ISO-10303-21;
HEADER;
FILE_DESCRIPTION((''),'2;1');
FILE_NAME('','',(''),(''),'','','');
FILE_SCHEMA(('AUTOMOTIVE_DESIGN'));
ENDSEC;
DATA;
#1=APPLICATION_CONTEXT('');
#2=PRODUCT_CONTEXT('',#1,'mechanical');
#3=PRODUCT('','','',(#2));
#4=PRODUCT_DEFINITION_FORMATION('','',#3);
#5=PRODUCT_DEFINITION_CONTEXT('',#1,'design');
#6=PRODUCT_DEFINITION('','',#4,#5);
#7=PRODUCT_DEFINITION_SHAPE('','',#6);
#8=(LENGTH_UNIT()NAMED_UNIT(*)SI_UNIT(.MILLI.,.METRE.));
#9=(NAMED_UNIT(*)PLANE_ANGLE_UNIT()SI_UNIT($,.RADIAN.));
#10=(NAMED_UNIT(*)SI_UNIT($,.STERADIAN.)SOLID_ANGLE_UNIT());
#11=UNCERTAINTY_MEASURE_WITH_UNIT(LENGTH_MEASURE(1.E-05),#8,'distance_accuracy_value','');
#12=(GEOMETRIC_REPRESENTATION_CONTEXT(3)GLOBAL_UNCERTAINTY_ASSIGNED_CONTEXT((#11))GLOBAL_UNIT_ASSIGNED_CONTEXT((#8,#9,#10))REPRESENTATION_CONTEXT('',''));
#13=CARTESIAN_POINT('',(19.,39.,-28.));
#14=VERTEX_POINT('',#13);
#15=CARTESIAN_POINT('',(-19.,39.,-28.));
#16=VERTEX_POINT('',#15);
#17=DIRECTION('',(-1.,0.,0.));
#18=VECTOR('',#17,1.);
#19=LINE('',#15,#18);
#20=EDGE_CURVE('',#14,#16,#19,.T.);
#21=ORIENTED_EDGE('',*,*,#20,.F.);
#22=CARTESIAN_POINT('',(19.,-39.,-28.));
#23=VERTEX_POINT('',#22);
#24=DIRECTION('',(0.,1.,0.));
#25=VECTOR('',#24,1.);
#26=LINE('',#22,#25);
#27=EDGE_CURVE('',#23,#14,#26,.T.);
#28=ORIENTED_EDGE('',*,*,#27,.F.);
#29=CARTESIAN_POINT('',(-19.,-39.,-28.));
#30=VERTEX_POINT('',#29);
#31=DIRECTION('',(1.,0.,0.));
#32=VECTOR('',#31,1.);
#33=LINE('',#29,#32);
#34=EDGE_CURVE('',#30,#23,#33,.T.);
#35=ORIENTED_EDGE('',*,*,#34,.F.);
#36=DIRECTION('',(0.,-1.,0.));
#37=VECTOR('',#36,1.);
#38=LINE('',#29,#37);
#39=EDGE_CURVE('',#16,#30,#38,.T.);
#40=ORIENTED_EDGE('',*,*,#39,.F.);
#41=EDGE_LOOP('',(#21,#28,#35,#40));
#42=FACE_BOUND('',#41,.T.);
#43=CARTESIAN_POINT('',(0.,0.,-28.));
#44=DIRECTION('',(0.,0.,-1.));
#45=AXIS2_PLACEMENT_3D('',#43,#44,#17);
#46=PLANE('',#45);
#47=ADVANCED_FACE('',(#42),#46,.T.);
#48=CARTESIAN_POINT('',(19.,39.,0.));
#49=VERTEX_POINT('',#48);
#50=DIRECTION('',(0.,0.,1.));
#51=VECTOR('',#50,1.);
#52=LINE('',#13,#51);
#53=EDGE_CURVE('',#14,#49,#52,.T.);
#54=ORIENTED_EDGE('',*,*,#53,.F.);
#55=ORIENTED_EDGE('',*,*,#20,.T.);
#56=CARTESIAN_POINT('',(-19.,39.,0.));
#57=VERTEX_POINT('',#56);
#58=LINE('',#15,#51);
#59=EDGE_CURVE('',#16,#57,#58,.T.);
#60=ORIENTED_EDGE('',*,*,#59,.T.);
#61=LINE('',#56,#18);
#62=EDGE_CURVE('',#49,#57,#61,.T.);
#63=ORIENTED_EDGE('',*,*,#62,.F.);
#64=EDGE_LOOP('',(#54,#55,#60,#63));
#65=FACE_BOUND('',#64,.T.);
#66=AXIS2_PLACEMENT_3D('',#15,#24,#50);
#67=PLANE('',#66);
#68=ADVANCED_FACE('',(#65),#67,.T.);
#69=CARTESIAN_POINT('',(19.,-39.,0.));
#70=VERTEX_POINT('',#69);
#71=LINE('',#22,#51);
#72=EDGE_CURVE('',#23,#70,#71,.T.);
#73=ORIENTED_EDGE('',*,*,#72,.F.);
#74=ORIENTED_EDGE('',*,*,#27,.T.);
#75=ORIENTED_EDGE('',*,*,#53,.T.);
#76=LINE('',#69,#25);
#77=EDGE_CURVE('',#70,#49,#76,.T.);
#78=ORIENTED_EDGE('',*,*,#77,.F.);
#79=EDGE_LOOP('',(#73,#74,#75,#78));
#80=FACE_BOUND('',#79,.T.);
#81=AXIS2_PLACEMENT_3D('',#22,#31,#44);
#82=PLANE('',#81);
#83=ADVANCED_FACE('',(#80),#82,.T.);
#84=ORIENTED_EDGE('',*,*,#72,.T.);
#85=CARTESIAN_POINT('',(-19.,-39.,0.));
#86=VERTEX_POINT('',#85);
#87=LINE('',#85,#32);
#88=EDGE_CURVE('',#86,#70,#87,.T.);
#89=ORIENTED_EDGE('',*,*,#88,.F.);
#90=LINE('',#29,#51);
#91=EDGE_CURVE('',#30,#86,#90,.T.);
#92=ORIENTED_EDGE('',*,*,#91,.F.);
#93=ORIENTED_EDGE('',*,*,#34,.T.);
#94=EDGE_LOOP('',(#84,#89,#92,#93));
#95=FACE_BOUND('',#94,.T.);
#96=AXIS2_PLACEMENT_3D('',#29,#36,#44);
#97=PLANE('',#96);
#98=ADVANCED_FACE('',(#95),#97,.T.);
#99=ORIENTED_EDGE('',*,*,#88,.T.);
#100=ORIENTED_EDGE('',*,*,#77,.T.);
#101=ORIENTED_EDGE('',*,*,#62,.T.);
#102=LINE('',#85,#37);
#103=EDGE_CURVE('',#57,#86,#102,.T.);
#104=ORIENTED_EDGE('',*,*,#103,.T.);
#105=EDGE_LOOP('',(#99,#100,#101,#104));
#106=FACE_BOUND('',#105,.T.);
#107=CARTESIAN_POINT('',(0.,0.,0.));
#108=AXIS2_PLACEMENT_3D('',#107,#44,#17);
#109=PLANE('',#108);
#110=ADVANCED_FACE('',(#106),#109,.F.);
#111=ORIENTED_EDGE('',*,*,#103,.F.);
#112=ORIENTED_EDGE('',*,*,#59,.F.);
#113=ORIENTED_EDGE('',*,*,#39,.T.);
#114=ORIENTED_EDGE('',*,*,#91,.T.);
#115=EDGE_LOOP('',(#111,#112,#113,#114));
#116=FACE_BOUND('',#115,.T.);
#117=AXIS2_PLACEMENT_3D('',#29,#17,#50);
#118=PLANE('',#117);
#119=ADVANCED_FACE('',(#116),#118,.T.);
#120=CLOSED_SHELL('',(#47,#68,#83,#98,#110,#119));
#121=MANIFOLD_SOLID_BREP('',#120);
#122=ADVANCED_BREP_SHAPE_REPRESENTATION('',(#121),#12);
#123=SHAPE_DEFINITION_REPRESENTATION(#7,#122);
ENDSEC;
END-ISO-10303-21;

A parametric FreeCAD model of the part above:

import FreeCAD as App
import Part
import Sketcher

V = App.Vector
Q = App.Units.Quantity


def add_polygon(sketch, points):
    """Adds a closed chain of lines whose ends are joined by coincident constraints."""
    first, n = sketch.GeometryCount, len(points)
    for a, b in zip(points, points[1:] + points[:1]):
        sketch.addGeometry(Part.LineSegment(App.Vector(*a, 0), App.Vector(*b, 0)), False)
    for i in range(n):
        sketch.addConstraint(Sketcher.Constraint("Coincident", first + i, 2, first + (i + 1) % n, 1))

doc = App.newDocument("Part")
body = doc.addObject("PartDesign::Body", "Body")

# Sketch on XY plane
sketch1 = body.newObject("Sketcher::SketchObject", "Sketch")
sketch1.AttachmentSupport = (doc.getObject("XY_Plane"), [""])
sketch1.MapMode = "FlatFace"
add_polygon(sketch1, [(-19, 39), (-19, -39), (19, -39), (19, 39)])  # lines 0-3
sketch1.addConstraint(Sketcher.Constraint("Vertical", 0))
sketch1.addConstraint(Sketcher.Constraint("Horizontal", 1))
sketch1.addConstraint(Sketcher.Constraint("Vertical", 2))
sketch1.addConstraint(Sketcher.Constraint("Horizontal", 3))
sketch1.addConstraint(Sketcher.Constraint("Symmetric", 0, 2, 2, 2, -1, 1))
sketch1.addConstraint(Sketcher.Constraint("DistanceX", 1, 1, 1, 2, Q("38 mm")))
sketch1.addConstraint(Sketcher.Constraint("DistanceY", 0, 2, 0, 1, Q("78 mm")))
pad1 = body.newObject("PartDesign::Pad", "Pad")
pad1.Profile = sketch1
pad1.Length = 28
pad1.Reversed = True

doc.recompute()
